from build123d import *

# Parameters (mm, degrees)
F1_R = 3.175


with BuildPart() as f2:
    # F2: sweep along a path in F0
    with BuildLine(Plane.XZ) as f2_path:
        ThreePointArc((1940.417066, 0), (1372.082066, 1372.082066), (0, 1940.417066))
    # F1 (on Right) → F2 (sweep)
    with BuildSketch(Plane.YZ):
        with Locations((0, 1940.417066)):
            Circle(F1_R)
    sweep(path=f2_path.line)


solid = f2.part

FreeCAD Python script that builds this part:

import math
import FreeCAD as App
import Part
import Sketcher
Q = App.Units.Quantity

doc = App.newDocument("Part")
body = doc.addObject("PartDesign::Body", "Body")

# Sketch on YZ plane
sketch1 = body.newObject("Sketcher::SketchObject", "Sketch")
sketch1.AttachmentSupport = (doc.getObject("YZ_Plane"), [""])
sketch1.MapMode = "FlatFace"
sketch1.addGeometry(Part.Circle(App.Vector(0, 1940.4, 0), App.Vector(0, 0, 1), 3.2), False)
sketch1.addConstraint(Sketcher.Constraint("PointOnObject", 0, 3, -2))
sketch1.addConstraint(Sketcher.Constraint("Diameter", 0, Q("0.25 in")))
sketch1.addConstraint(Sketcher.Constraint("DistanceY", -1, 1, 0, 3, Q("1940.417066 mm")))

# Sketch on XZ plane
sketch2 = body.newObject("Sketcher::SketchObject", "Sketch001")
sketch2.AttachmentSupport = (doc.getObject("XZ_Plane"), [""])
sketch2.MapMode = "FlatFace"
sketch2.addGeometry(Part.ArcOfCircle(Part.Circle(App.Vector(0, 0, 0), App.Vector(0, 0, 1), 1940), math.radians(0), math.radians(90)), False)
sketch2.addConstraint(Sketcher.Constraint("Coincident", 0, 3, -1, 1))
sketch2.addConstraint(Sketcher.Constraint("PointOnObject", 0, 1, -1))
sketch2.addConstraint(Sketcher.Constraint("PointOnObject", 0, 2, -2))
sketch2.addConstraint(Sketcher.Constraint("Radius", 0, Q("1940.417065 mm")))
doc.recompute()

additivepipe = body.newObject("PartDesign::AdditivePipe", "AdditivePipe")
additivepipe.Profile = sketch1
additivepipe.Spine = (sketch2, ["Edge1"])

doc.recompute()
